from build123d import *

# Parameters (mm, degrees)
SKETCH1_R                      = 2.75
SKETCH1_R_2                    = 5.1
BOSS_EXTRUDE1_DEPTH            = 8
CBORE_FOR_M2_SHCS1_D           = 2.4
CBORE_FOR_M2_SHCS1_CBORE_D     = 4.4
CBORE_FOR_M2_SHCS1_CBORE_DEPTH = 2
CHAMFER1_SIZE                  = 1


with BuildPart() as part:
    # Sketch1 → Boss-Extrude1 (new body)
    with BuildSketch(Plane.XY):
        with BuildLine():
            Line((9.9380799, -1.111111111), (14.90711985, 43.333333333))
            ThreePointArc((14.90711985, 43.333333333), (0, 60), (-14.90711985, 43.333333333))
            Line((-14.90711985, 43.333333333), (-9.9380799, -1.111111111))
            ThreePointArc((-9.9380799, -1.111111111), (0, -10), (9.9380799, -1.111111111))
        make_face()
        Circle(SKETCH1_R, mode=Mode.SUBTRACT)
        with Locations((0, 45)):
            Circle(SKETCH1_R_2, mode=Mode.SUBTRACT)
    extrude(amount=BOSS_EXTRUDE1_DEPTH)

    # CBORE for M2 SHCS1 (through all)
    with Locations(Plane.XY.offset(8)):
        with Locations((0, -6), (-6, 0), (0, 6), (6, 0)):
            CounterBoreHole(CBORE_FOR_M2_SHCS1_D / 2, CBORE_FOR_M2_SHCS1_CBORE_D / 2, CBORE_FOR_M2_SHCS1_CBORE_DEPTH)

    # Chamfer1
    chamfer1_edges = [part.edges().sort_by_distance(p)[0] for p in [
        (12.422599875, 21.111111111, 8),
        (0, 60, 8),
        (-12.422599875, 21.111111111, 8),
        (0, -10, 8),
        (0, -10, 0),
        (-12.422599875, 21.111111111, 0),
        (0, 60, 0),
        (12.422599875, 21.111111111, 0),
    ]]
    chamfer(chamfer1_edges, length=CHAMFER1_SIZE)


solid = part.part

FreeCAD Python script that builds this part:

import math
import FreeCAD as App
import Part
import Sketcher


def edges_at(feature, points):
    """Names of the edges that pass closest to the given points."""
    edges = feature.Shape.Edges
    near = lambda p: min(range(len(edges)), key=lambda i: edges[i].distToShape(Part.Vertex(*p))[0])
    return sorted({f"Edge{near(p) + 1}" for p in points})

doc = App.newDocument("Part")
params = doc.addObject("Spreadsheet::Sheet", "Params")
for row, (alias, value) in enumerate([
    ("sketch1_radius", "15 mm"),
    ("sketch1_radius2", "10 mm"),
    ("sketch1_diameter", "5.5 mm"),
    ("sketch1_diameter2", "10.2 mm"),
    ("pad1_length", "8 mm"),
    ("sketch2_diameter", "2.4 mm"),
    ("hole_diameter", "2.4 mm"),
    ("hole_cbore_diameter", "4.4 mm"),
    ("hole_cbore_depth", "2 mm"),
    ("chamfer_size", "1 mm"),
], start=1):
    params.set(f"A{row}", alias)
    params.set(f"B{row}", "=" + value)
    params.setAlias(f"B{row}", alias)

body = doc.addObject("PartDesign::Body", "Body")

# Sketch on XY plane
sketch1 = doc.addObject("Sketcher::SketchObject", "Sketch")
body.addObject(sketch1)
sketch1.AttachmentSupport = (doc.XY_Plane, [""])
sketch1.MapMode = "FlatFace"
sketch1.addGeometry(Part.LineSegment(App.Vector(9.93808, -1.111111, 0), App.Vector(14.90712, 43.333333, 0)), False)
sketch1.addGeometry(Part.ArcOfCircle(Part.Circle(App.Vector(0, 45, 0), App.Vector(0, 0, 1), 15), math.radians(-6.37937), math.radians(186.37937)), False)
sketch1.addGeometry(Part.LineSegment(App.Vector(-14.90712, 43.333333, 0), App.Vector(-9.93808, -1.111111, 0)), False)
sketch1.addGeometry(Part.ArcOfCircle(Part.Circle(App.Vector(0, 0, 0), App.Vector(0, 0, 1), 10), math.radians(-173.62063), math.radians(-6.37937)), False)
sketch1.addGeometry(Part.Circle(App.Vector(0, 0, 0), App.Vector(0, 0, 1), 2.75), False)
sketch1.addGeometry(Part.Circle(App.Vector(0, 45, 0), App.Vector(0, 0, 1), 5.1), False)
sketch1.addConstraint(Sketcher.Constraint("Tangent", 0, 2, 1, 1))
sketch1.addConstraint(Sketcher.Constraint("Tangent", 1, 2, 2, 1))
sketch1.addConstraint(Sketcher.Constraint("Tangent", 2, 2, 3, 1))
sketch1.addConstraint(Sketcher.Constraint("Tangent", 3, 2, 0, 1))
sketch1.addConstraint(Sketcher.Constraint("Coincident", 3, 3, -1, 1))
sketch1.addConstraint(Sketcher.Constraint("Coincident", 4, 3, -1, 1))
sketch1.addConstraint(Sketcher.Constraint("Coincident", 5, 3, 1, 3))
sketch1.addConstraint(Sketcher.Constraint("PointOnObject", 1, 3, -2))
sketch1.addConstraint(Sketcher.Constraint("Radius", 1, 15.0))
sketch1.addConstraint(Sketcher.Constraint("Radius", 3, 10.0))
sketch1.addConstraint(Sketcher.Constraint("Diameter", 4, 5.5))
sketch1.addConstraint(Sketcher.Constraint("Diameter", 5, 10.2))
sketch1.addConstraint(Sketcher.Constraint("DistanceY", -1, 1, 1, 3, 45.0))
sketch1.setExpression("Constraints[8]", "Params.sketch1_radius")
sketch1.setExpression("Constraints[9]", "Params.sketch1_radius2")
sketch1.setExpression("Constraints[10]", "Params.sketch1_diameter")
sketch1.setExpression("Constraints[11]", "Params.sketch1_diameter2")
pad1 = doc.addObject("PartDesign::Pad", "Pad")
body.addObject(pad1)
pad1.Profile = sketch1
pad1.setExpression("Length", "Params.pad1_length")

# Sketch on XY plane
sketch2 = doc.addObject("Sketcher::SketchObject", "Sketch001")
body.addObject(sketch2)
sketch2.AttachmentSupport = (doc.XY_Plane, [""])
sketch2.MapMode = "FlatFace"
sketch2.AttachmentOffset = App.Placement(App.Vector(0, 0, 8), App.Rotation())
sketch2.addGeometry(Part.Circle(App.Vector(0, -6, 0), App.Vector(0, 0, 1), 1.2), False)
sketch2.addGeometry(Part.Circle(App.Vector(-6, 0, 0), App.Vector(0, 0, 1), 1.2), False)
sketch2.addGeometry(Part.Circle(App.Vector(0, 6, 0), App.Vector(0, 0, 1), 1.2), False)
sketch2.addGeometry(Part.Circle(App.Vector(6, 0, 0), App.Vector(0, 0, 1), 1.2), False)
sketch2.addConstraint(Sketcher.Constraint("Equal", 0, 1))
sketch2.addConstraint(Sketcher.Constraint("Equal", 1, 2))
sketch2.addConstraint(Sketcher.Constraint("Equal", 2, 3))
sketch2.addConstraint(Sketcher.Constraint("Symmetric", 0, 3, 2, 3, -1, 1))
sketch2.addConstraint(Sketcher.Constraint("Symmetric", 1, 3, 3, 3, -1, 1))
sketch2.addConstraint(Sketcher.Constraint("PointOnObject", 0, 3, -2))
sketch2.addConstraint(Sketcher.Constraint("PointOnObject", 1, 3, -1))
sketch2.addConstraint(Sketcher.Constraint("Diameter", 0, 2.4))
sketch2.addConstraint(Sketcher.Constraint("DistanceY", 0, 3, -1, 1, 6.0))
sketch2.addConstraint(Sketcher.Constraint("DistanceX", 1, 3, -1, 1, 6.0))
sketch2.setExpression("Constraints[7]", "Params.sketch2_diameter")
doc.recompute()
hole = doc.addObject("PartDesign::Hole", "Hole")
body.addObject(hole)
hole.Profile = sketch2
hole.ThreadType = "None"
hole.setExpression("Diameter", "Params.hole_diameter")
hole.DepthType = "ThroughAll"
hole.HoleCutType = "Counterbore"
hole.setExpression("HoleCutDiameter", "Params.hole_cbore_diameter")
hole.setExpression("HoleCutDepth", "Params.hole_cbore_depth")
doc.recompute()

chamfer = doc.addObject("PartDesign::Chamfer", "Chamfer")
body.addObject(chamfer)
chamfer.Base = (hole, edges_at(hole, [
    (12.423, 21.111, 8),
    (0, 60, 8),
    (-12.423, 21.111, 8),
    (0, -10, 8),
    (0, -10, 0),
    (-12.423, 21.111, 0),
    (0, 60, 0),
    (12.423, 21.111, 0),
]))
chamfer.setExpression("Size", "Params.chamfer_size")

doc.recompute()
